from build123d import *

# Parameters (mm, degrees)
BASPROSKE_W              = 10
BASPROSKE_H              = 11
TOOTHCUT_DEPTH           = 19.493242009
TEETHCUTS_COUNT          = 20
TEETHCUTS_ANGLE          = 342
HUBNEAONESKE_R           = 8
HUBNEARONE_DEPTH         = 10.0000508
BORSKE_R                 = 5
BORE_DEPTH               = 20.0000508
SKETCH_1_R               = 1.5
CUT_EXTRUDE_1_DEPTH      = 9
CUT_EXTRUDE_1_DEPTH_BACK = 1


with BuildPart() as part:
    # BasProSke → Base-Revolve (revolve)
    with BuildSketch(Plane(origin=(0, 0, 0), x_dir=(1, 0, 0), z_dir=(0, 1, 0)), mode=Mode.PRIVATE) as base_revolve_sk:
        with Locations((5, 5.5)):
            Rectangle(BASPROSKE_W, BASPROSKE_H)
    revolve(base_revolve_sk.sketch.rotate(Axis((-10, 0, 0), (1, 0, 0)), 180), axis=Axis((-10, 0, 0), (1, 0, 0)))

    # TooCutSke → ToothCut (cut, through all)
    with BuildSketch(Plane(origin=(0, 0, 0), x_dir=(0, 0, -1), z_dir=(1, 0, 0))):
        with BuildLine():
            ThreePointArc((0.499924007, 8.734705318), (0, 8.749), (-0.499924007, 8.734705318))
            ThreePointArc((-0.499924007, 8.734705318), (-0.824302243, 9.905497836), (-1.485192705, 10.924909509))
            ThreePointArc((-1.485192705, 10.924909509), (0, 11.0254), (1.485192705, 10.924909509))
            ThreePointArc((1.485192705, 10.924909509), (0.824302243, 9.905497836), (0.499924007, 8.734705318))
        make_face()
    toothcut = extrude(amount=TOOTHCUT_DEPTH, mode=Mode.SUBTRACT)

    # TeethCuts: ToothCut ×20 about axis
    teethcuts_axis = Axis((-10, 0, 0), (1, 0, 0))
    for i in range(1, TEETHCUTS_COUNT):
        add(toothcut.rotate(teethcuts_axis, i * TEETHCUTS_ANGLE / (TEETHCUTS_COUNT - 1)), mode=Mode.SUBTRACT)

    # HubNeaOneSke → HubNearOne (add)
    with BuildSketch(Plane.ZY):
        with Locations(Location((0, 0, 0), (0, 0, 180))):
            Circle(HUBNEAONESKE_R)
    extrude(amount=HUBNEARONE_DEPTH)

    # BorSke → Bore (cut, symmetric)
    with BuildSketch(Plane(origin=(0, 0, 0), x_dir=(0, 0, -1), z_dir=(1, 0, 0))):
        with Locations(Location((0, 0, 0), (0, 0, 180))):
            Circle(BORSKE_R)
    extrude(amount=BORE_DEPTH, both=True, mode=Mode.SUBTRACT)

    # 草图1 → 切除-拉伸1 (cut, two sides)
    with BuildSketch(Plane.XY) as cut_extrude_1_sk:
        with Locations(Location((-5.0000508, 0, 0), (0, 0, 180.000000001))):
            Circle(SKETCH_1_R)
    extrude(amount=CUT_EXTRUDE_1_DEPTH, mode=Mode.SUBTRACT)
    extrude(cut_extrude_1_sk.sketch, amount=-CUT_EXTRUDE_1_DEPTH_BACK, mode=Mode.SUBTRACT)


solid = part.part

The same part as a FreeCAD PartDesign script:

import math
import FreeCAD as App
import Part
import Sketcher
from FreeCAD import Vector
Q = App.Units.Quantity

doc = App.newDocument("Part")
body = doc.addObject("PartDesign::Body", "Body")

# Sketch on XZ plane
sketch1 = body.newObject("Sketcher::SketchObject", "Sketch")
sketch1.AttachmentSupport = (doc.getObject("XZ_Plane"), [""])
sketch1.MapMode = "FlatFace"
sketch1.addGeometry(Part.LineSegment(Vector(0, -11, 0), Vector(0, 0, 0)), False)
sketch1.addGeometry(Part.LineSegment(Vector(0, 0, 0), Vector(10, 0, 0)), False)
sketch1.addGeometry(Part.LineSegment(Vector(10, 0, 0), Vector(10, -11, 0)), False)
sketch1.addGeometry(Part.LineSegment(Vector(10, -11, 0), Vector(0, -11, 0)), False)
sketch1.addConstraint(Sketcher.Constraint("Coincident", 0, 2, 1, 1))
sketch1.addConstraint(Sketcher.Constraint("Coincident", 1, 2, 2, 1))
sketch1.addConstraint(Sketcher.Constraint("Coincident", 2, 2, 3, 1))
sketch1.addConstraint(Sketcher.Constraint("Coincident", 3, 2, 0, 1))
sketch1.addConstraint(Sketcher.Constraint("Vertical", 0))
sketch1.addConstraint(Sketcher.Constraint("Horizontal", 1))
sketch1.addConstraint(Sketcher.Constraint("Vertical", 2))
sketch1.addConstraint(Sketcher.Constraint("Horizontal", 3))
sketch1.addConstraint(Sketcher.Constraint("Coincident", 0, 2, -1, 1))
sketch1.addConstraint(Sketcher.Constraint("DistanceX", 1, 1, 1, 2, Q("10 mm")))
sketch1.addConstraint(Sketcher.Constraint("DistanceY", 0, 1, 0, 2, Q("11 mm")))
revolution = body.newObject("PartDesign::Revolution", "Revolution")
revolution.Profile = sketch1
revolution.ReferenceAxis = (sketch1, ["H_Axis"])
revolution.Angle = 360

# Sketch on YZ plane
sketch2 = body.newObject("Sketcher::SketchObject", "Sketch001")
sketch2.AttachmentSupport = (doc.getObject("YZ_Plane"), [""])
sketch2.MapMode = "FlatFace"
sketch2.addGeometry(Part.ArcOfCircle(Part.Circle(Vector(0, 0, 0), Vector(0, 0, 1), 8.749), math.radians(-3.275705), math.radians(3.275705)), False)
sketch2.addGeometry(Part.ArcOfCircle(Part.Circle(Vector(8.264487, -4.47219, 0), Vector(0, 0, 1), 4), math.radians(48.309566), math.radians(83.249005)), False)
sketch2.addGeometry(Part.ArcOfCircle(Part.Circle(Vector(0, 0, 0), Vector(0, 0, 1), 11.0254), math.radians(-7.741647), math.radians(7.741647)), False)
sketch2.addGeometry(Part.ArcOfCircle(Part.Circle(Vector(8.264487, 4.47219, 0), Vector(0, 0, 1), 4), math.radians(-83.249005), math.radians(-48.309566)), False)
sketch2.addConstraint(Sketcher.Constraint("Coincident", 0, 1, 1, 2))
sketch2.addConstraint(Sketcher.Constraint("Coincident", 1, 1, 2, 1))
sketch2.addConstraint(Sketcher.Constraint("Coincident", 2, 2, 3, 2))
sketch2.addConstraint(Sketcher.Constraint("Coincident", 3, 1, 0, 2))
sketch2.addConstraint(Sketcher.Constraint("Coincident", 0, 3, -1, 1))
sketch2.addConstraint(Sketcher.Constraint("Coincident", 2, 3, -1, 1))
sketch2.addConstraint(Sketcher.Constraint("Equal", 1, 3))
sketch2.addConstraint(Sketcher.Constraint("Symmetric", 1, 3, 3, 3, -1))
sketch2.addConstraint(Sketcher.Constraint("Radius", 1, Q("4 mm")))
sketch2.addConstraint(Sketcher.Constraint("Radius", 0, Q("8.749 mm")))
sketch2.addConstraint(Sketcher.Constraint("Radius", 2, Q("11.0254 mm")))
sketch2.addConstraint(Sketcher.Constraint("DistanceY", 1, 3, -1, 1, Q("4.47219 mm")))
sketch2.addConstraint(Sketcher.Constraint("DistanceX", -1, 1, 1, 1, Q("10.92491 mm")))
pocket1 = body.newObject("PartDesign::Pocket", "Pocket")
pocket1.Profile = sketch2
pocket1.Type = "ThroughAll"
pocket1.Reversed = True
doc.recompute()

polarpattern = body.newObject("PartDesign::PolarPattern", "PolarPattern")
polarpattern.Originals = [pocket1]
polarpattern.Axis = (doc.getObject("X_Axis"), [""])
polarpattern.Angle = 360
polarpattern.Occurrences = 20
body.Tip = polarpattern

# Sketch on YZ plane
sketch3 = body.newObject("Sketcher::SketchObject", "Sketch002")
sketch3.AttachmentSupport = (doc.getObject("YZ_Plane"), [""])
sketch3.MapMode = "FlatFace"
sketch3.addGeometry(Part.Circle(Vector(0, 0, 0), Vector(0, 0, 1), 8), False)
sketch3.addConstraint(Sketcher.Constraint("Coincident", 0, 3, -1, 1))
sketch3.addConstraint(Sketcher.Constraint("Diameter", 0, Q("16 mm")))
pad1 = body.newObject("PartDesign::Pad", "Pad")
pad1.Profile = sketch3
pad1.Length = 10.000051
pad1.Reversed = True

# Sketch on YZ plane
sketch4 = body.newObject("Sketcher::SketchObject", "Sketch003")
sketch4.AttachmentSupport = (doc.getObject("YZ_Plane"), [""])
sketch4.MapMode = "FlatFace"
sketch4.addGeometry(Part.Circle(Vector(0, 0, 0), Vector(0, 0, 1), 5), False)
sketch4.addConstraint(Sketcher.Constraint("Coincident", 0, 3, -1, 1))
sketch4.addConstraint(Sketcher.Constraint("Diameter", 0, Q("10 mm")))
pocket2 = body.newObject("PartDesign::Pocket", "Pocket001")
pocket2.Profile = sketch4
pocket2.Length = 40.000102
pocket2.Midplane = True

# Sketch on XY plane
sketch5 = body.newObject("Sketcher::SketchObject", "Sketch004")
sketch5.AttachmentSupport = (doc.getObject("XY_Plane"), [""])
sketch5.MapMode = "FlatFace"
sketch5.addGeometry(Part.Circle(Vector(-5.000051, 0, 0), Vector(0, 0, 1), 1.5), False)
sketch5.addConstraint(Sketcher.Constraint("PointOnObject", 0, 3, -1))
sketch5.addConstraint(Sketcher.Constraint("Diameter", 0, Q("3 mm")))
sketch5.addConstraint(Sketcher.Constraint("DistanceX", 0, 3, -1, 1, Q("5.000051 mm")))
pocket3 = body.newObject("PartDesign::Pocket", "Pocket002")
pocket3.Profile = sketch5
pocket3.Type = "TwoLengths"
pocket3.Length = 9
pocket3.Length2 = 1
pocket3.Reversed = True

doc.recompute()
